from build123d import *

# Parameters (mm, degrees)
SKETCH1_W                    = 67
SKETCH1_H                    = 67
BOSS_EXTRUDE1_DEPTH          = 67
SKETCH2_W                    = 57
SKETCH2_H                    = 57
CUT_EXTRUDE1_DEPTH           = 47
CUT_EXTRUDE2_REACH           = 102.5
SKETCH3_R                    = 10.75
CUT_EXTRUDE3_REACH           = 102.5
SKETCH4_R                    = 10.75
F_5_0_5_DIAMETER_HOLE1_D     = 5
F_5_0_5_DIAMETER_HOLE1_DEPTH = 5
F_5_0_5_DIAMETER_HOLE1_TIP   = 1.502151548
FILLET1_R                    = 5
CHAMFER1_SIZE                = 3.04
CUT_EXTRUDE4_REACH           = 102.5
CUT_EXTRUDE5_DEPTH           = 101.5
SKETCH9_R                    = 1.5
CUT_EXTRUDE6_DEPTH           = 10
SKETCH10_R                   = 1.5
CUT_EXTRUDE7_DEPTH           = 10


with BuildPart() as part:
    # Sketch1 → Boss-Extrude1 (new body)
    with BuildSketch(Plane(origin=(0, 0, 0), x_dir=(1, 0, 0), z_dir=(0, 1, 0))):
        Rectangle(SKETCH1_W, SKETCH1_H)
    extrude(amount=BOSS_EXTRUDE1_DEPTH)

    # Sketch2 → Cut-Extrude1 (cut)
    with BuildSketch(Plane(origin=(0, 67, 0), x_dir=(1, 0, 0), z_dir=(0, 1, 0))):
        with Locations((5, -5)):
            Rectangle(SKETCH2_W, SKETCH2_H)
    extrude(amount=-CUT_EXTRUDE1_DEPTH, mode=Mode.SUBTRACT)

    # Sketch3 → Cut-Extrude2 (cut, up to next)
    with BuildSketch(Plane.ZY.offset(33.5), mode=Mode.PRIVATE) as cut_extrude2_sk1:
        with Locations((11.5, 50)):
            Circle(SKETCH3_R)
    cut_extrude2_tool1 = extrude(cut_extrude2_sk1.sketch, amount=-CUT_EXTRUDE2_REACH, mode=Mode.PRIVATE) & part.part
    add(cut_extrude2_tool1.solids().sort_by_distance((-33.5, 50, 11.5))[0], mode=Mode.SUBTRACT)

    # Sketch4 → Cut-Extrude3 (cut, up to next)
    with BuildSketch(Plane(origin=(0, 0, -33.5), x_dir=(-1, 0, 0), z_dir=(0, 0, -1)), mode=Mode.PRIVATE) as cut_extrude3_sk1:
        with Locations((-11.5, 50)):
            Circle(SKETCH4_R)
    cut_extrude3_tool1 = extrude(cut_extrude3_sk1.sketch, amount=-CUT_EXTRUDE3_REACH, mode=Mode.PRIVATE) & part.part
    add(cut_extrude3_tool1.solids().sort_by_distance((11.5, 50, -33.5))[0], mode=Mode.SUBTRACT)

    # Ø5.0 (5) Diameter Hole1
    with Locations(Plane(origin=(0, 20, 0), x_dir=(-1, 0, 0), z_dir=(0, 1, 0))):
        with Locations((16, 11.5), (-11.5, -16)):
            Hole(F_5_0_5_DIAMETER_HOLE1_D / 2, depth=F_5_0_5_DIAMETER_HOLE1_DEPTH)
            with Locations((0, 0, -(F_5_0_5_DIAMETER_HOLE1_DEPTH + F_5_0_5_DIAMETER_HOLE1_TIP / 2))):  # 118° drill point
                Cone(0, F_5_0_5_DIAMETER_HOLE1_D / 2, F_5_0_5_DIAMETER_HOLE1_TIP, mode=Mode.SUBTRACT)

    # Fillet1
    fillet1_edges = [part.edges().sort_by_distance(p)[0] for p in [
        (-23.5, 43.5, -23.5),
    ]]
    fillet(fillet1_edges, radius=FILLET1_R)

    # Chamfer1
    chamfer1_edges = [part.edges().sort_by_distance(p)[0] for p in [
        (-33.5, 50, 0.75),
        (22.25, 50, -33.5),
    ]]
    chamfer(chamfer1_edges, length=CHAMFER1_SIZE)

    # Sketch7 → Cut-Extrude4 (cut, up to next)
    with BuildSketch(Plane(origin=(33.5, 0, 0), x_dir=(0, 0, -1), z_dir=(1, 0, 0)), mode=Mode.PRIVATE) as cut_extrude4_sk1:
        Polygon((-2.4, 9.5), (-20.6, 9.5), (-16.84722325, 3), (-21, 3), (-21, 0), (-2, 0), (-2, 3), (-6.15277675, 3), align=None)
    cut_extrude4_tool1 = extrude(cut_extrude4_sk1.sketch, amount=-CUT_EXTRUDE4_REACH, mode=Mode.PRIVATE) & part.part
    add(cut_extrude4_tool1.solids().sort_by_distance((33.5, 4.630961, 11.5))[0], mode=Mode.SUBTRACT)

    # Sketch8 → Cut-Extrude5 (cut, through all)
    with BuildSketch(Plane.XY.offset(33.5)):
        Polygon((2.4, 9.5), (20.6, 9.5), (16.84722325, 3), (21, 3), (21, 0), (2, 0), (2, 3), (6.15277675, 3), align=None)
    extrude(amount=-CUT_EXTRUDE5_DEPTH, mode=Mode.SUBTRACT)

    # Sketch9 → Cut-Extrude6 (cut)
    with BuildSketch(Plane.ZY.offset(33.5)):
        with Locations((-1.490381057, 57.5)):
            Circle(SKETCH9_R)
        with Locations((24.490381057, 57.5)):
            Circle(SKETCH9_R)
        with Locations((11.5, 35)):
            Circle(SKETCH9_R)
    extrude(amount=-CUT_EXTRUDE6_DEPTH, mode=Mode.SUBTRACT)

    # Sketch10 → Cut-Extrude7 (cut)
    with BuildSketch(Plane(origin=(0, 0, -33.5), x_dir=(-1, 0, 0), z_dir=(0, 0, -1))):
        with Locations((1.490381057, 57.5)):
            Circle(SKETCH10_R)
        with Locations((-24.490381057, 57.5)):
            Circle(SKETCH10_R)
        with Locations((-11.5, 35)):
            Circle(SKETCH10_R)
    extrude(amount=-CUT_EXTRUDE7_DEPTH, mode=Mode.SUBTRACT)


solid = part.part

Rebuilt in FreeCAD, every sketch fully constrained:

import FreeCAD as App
import Part
import Sketcher
from FreeCAD import Vector
Q = App.Units.Quantity


def edges_at(feature, points):
    """Names of the edges that pass closest to the given points."""
    edges = feature.Shape.Edges
    near = lambda p: min(range(len(edges)), key=lambda i: edges[i].distToShape(Part.Vertex(*p))[0])
    return sorted({f"Edge{near(p) + 1}" for p in points})

doc = App.newDocument("Part")
body = doc.addObject("PartDesign::Body", "Body")

# Sketch on XZ plane
sketch1 = body.newObject("Sketcher::SketchObject", "Sketch")
sketch1.AttachmentSupport = (doc.getObject("XZ_Plane"), [""])
sketch1.MapMode = "FlatFace"
sketch1.addGeometry([
    Part.LineSegment(Vector(-34, -34, 0), Vector(-34, 34, 0)),
    Part.LineSegment(Vector(-34, 34, 0), Vector(34, 34, 0)),
    Part.LineSegment(Vector(34, 34, 0), Vector(34, -34, 0)),
    Part.LineSegment(Vector(34, -34, 0), Vector(-34, -34, 0)),
], False)
sketch1.addConstraint([
    Sketcher.Constraint("Coincident", 0, 2, 1, 1),
    Sketcher.Constraint("Coincident", 1, 2, 2, 1),
    Sketcher.Constraint("Coincident", 2, 2, 3, 1),
    Sketcher.Constraint("Coincident", 3, 2, 0, 1),
    Sketcher.Constraint("Vertical", 0),
    Sketcher.Constraint("Horizontal", 1),
    Sketcher.Constraint("Vertical", 2),
    Sketcher.Constraint("Horizontal", 3),
    Sketcher.Constraint("Symmetric", 0, 2, 2, 2, -1, 1),
    Sketcher.Constraint("Equal", 3, 0),
    Sketcher.Constraint("DistanceX", 1, 1, 1, 2, Q("67 mm")),
])
pad1 = body.newObject("PartDesign::Pad", "Pad")
pad1.Profile = sketch1
pad1.Length = 67
pad1.Reversed = True

# Sketch on XZ plane
sketch2 = body.newObject("Sketcher::SketchObject", "Sketch001")
sketch2.AttachmentSupport = (doc.getObject("XZ_Plane"), [""])
sketch2.MapMode = "FlatFace"
sketch2.AttachmentOffset = App.Placement(Vector(0, 0, -67), App.Rotation())
sketch2.addGeometry([
    Part.LineSegment(Vector(-24, -24, 0), Vector(-24, 34, 0)),
    Part.LineSegment(Vector(-24, 34, 0), Vector(34, 34, 0)),
    Part.LineSegment(Vector(34, 34, 0), Vector(34, -24, 0)),
    Part.LineSegment(Vector(34, -24, 0), Vector(-24, -24, 0)),
], False)
sketch2.addConstraint([
    Sketcher.Constraint("Coincident", 0, 2, 1, 1),
    Sketcher.Constraint("Coincident", 1, 2, 2, 1),
    Sketcher.Constraint("Coincident", 2, 2, 3, 1),
    Sketcher.Constraint("Coincident", 3, 2, 0, 1),
    Sketcher.Constraint("Vertical", 0),
    Sketcher.Constraint("Horizontal", 1),
    Sketcher.Constraint("Vertical", 2),
    Sketcher.Constraint("Horizontal", 3),
    Sketcher.Constraint("Equal", 3, 0),
    Sketcher.Constraint("DistanceX", 1, 1, 1, 2, Q("57 mm")),
    Sketcher.Constraint("DistanceX", 0, 2, -1, 1, Q("23.5 mm")),
    Sketcher.Constraint("DistanceY", -1, 1, 0, 2, Q("33.5 mm")),
])
pocket1 = body.newObject("PartDesign::Pocket", "Pocket")
pocket1.Profile = sketch2
pocket1.Length = 47
pocket1.Reversed = True

# Sketch on YZ plane
sketch3 = body.newObject("Sketcher::SketchObject", "Sketch002")
sketch3.AttachmentSupport = (doc.getObject("YZ_Plane"), [""])
sketch3.MapMode = "FlatFace"
sketch3.AttachmentOffset = App.Placement(Vector(0, 0, -33.5), App.Rotation())
sketch3.addGeometry(Part.Circle(Vector(50, 12, 0), Vector(0, 0, 1), 11), False)
sketch3.addConstraint([
    Sketcher.Constraint("Diameter", 0, Q("21.5 mm")),
    Sketcher.Constraint("DistanceX", -1, 1, 0, 3, Q("50 mm")),
    Sketcher.Constraint("DistanceY", -1, 1, 0, 3, Q("11.5 mm")),
])
pocket2 = body.newObject("PartDesign::Pocket", "Pocket001")
pocket2.Profile = sketch3
pocket2.Type = "UpToFirst"
pocket2.Reversed = True

# Sketch on XY plane
sketch4 = body.newObject("Sketcher::SketchObject", "Sketch003")
sketch4.AttachmentSupport = (doc.getObject("XY_Plane"), [""])
sketch4.MapMode = "FlatFace"
sketch4.AttachmentOffset = App.Placement(Vector(0, 0, -33.5), App.Rotation())
sketch4.addGeometry(Part.Circle(Vector(12, 50, 0), Vector(0, 0, 1), 11), False)
sketch4.addConstraint([
    Sketcher.Constraint("Diameter", 0, Q("21.5 mm")),
    Sketcher.Constraint("DistanceY", -1, 1, 0, 3, Q("50 mm")),
    Sketcher.Constraint("DistanceX", -1, 1, 0, 3, Q("11.5 mm")),
])
pocket3 = body.newObject("PartDesign::Pocket", "Pocket002")
pocket3.Profile = sketch4
pocket3.Type = "UpToFirst"
pocket3.Reversed = True

# Sketch on XZ plane
sketch5 = body.newObject("Sketcher::SketchObject", "Sketch004")
sketch5.AttachmentSupport = (doc.getObject("XZ_Plane"), [""])
sketch5.MapMode = "FlatFace"
sketch5.AttachmentOffset = App.Placement(Vector(0, 0, -20), App.Rotation())
sketch5.addGeometry([
    Part.Circle(Vector(-16, 11.5, 0), Vector(0, 0, 1), 2.5),
    Part.Circle(Vector(11.5, -16, 0), Vector(0, 0, 1), 2.5),
], False)
sketch5.addConstraint([
    Sketcher.Constraint("Equal", 0, 1),
    Sketcher.Constraint("Diameter", 0, Q("5 mm")),
    Sketcher.Constraint("DistanceX", 0, 3, -1, 1, Q("16 mm")),
    Sketcher.Constraint("DistanceY", 1, 3, -1, 1, Q("16 mm")),
    Sketcher.Constraint("DistanceY", -1, 1, 0, 3, Q("11.5 mm")),
    Sketcher.Constraint("DistanceX", -1, 1, 1, 3, Q("11.5 mm")),
])
doc.recompute()
hole = body.newObject("PartDesign::Hole", "Hole")
hole.Profile = sketch5
hole.ThreadType = "None"
hole.Diameter = 5
hole.DepthType = "Dimension"
hole.Depth = 5
hole.DrillPoint = "Angled"
hole.DrillPointAngle = 118
hole.Reversed = True
doc.recompute()

fillet = body.newObject("PartDesign::Fillet", "Fillet")
fillet.Base = (hole, edges_at(hole, [(-23.5, 43.5, -23.5)]))
fillet.Radius = 5
doc.recompute()

chamfer = body.newObject("PartDesign::Chamfer", "Chamfer")
chamfer.Base = (fillet, edges_at(fillet, [(-33.5, 50, 0.75), (22.25, 50, -33.5)]))
chamfer.Size = 3.04

# Sketch on YZ plane
sketch6 = body.newObject("Sketcher::SketchObject", "Sketch005")
sketch6.AttachmentSupport = (doc.getObject("YZ_Plane"), [""])
sketch6.MapMode = "FlatFace"
sketch6.AttachmentOffset = App.Placement(Vector(0, 0, 33.5), App.Rotation())
sketch6.addGeometry([
    Part.LineSegment(Vector(9.5, 2.4, 0), Vector(9.5, 20.6, 0)),  # 0
    Part.LineSegment(Vector(9.5, 20.6, 0), Vector(3, 16.8, 0)),  # 1
    Part.LineSegment(Vector(3, 16.8, 0), Vector(3, 21, 0)),  # 2
    Part.LineSegment(Vector(3, 21, 0), Vector(0, 21, 0)),  # 3
    Part.LineSegment(Vector(0, 21, 0), Vector(0, 2, 0)),  # 4
    Part.LineSegment(Vector(0, 2, 0), Vector(3, 2, 0)),  # 5
    Part.LineSegment(Vector(3, 2, 0), Vector(3, 6.2, 0)),  # 6
    Part.LineSegment(Vector(3, 6.2, 0), Vector(9.5, 2.4, 0)),  # 7
], False)
sketch6.addConstraint([
    Sketcher.Constraint("Coincident", 0, 2, 1, 1),
    Sketcher.Constraint("Coincident", 1, 2, 2, 1),
    Sketcher.Constraint("Coincident", 2, 2, 3, 1),
    Sketcher.Constraint("Coincident", 3, 2, 4, 1),
    Sketcher.Constraint("Coincident", 4, 2, 5, 1),
    Sketcher.Constraint("Coincident", 5, 2, 6, 1),
    Sketcher.Constraint("Coincident", 6, 2, 7, 1),
    Sketcher.Constraint("Coincident", 7, 2, 0, 1),
    Sketcher.Constraint("Vertical", 0),
    Sketcher.Constraint("Vertical", 2),
    Sketcher.Constraint("Horizontal", 3),
    Sketcher.Constraint("Vertical", 4),
    Sketcher.Constraint("Horizontal", 5),
    Sketcher.Constraint("Vertical", 6),
    Sketcher.Constraint("PointOnObject", 3, 2, -2),
    Sketcher.Constraint("Vertical", 2, 2, 5, 2),
    Sketcher.Constraint("Equal", 2, 6),
    Sketcher.Constraint("Equal", 1, 7),
    Sketcher.Constraint("DistanceX", 3, 2, 3, 1, Q("3 mm")),
    Sketcher.Constraint("DistanceY", 4, 2, 4, 1, Q("19 mm")),
    Sketcher.Constraint("Angle", 1, Q("-150 deg")),
    Sketcher.Constraint("DistanceY", 0, 1, 0, 2, Q("18.2 mm")),
    Sketcher.Constraint("DistanceY", -1, 1, 2, 2, Q("21 mm")),
    Sketcher.Constraint("DistanceX", -1, 1, 0, 2, Q("9.5 mm")),
])
pocket4 = body.newObject("PartDesign::Pocket", "Pocket003")
pocket4.Profile = sketch6
pocket4.Type = "UpToFirst"

# Sketch on XY plane
sketch7 = body.newObject("Sketcher::SketchObject", "Sketch006")
sketch7.AttachmentSupport = (doc.getObject("XY_Plane"), [""])
sketch7.MapMode = "FlatFace"
sketch7.AttachmentOffset = App.Placement(Vector(0, 0, 33.5), App.Rotation())
sketch7.addGeometry([
    Part.LineSegment(Vector(20.6, 9.5, 0), Vector(2.4, 9.5, 0)),  # 0
    Part.LineSegment(Vector(2.4, 9.5, 0), Vector(6.2, 3, 0)),  # 1
    Part.LineSegment(Vector(6.2, 3, 0), Vector(2, 3, 0)),  # 2
    Part.LineSegment(Vector(2, 3, 0), Vector(2, 0, 0)),  # 3
    Part.LineSegment(Vector(2, 0, 0), Vector(21, 0, 0)),  # 4
    Part.LineSegment(Vector(21, 0, 0), Vector(21, 3, 0)),  # 5
    Part.LineSegment(Vector(21, 3, 0), Vector(16.8, 3, 0)),  # 6
    Part.LineSegment(Vector(16.8, 3, 0), Vector(20.6, 9.5, 0)),  # 7
], False)
sketch7.addConstraint([
    Sketcher.Constraint("Coincident", 0, 2, 1, 1),
    Sketcher.Constraint("Coincident", 1, 2, 2, 1),
    Sketcher.Constraint("Coincident", 2, 2, 3, 1),
    Sketcher.Constraint("Coincident", 3, 2, 4, 1),
    Sketcher.Constraint("Coincident", 4, 2, 5, 1),
    Sketcher.Constraint("Coincident", 5, 2, 6, 1),
    Sketcher.Constraint("Coincident", 6, 2, 7, 1),
    Sketcher.Constraint("Coincident", 7, 2, 0, 1),
    Sketcher.Constraint("Horizontal", 0),
    Sketcher.Constraint("Horizontal", 2),
    Sketcher.Constraint("Vertical", 3),
    Sketcher.Constraint("Horizontal", 4),
    Sketcher.Constraint("Vertical", 5),
    Sketcher.Constraint("Horizontal", 6),
    Sketcher.Constraint("PointOnObject", 3, 2, -1),
    Sketcher.Constraint("Horizontal", 2, 2, 5, 2),
    Sketcher.Constraint("Equal", 2, 6),
    Sketcher.Constraint("Equal", 1, 7),
    Sketcher.Constraint("DistanceX", 4, 1, 4, 2, Q("19 mm")),
    Sketcher.Constraint("DistanceY", 3, 2, 3, 1, Q("3 mm")),
    Sketcher.Constraint("Angle", 1, Q("-60 deg")),
    Sketcher.Constraint("DistanceX", 0, 2, 0, 1, Q("18.2 mm")),
    Sketcher.Constraint("DistanceX", -1, 1, 2, 2, Q("2 mm")),
    Sketcher.Constraint("DistanceY", -1, 1, 0, 2, Q("9.5 mm")),
])
pocket5 = body.newObject("PartDesign::Pocket", "Pocket004")
pocket5.Profile = sketch7
pocket5.Type = "ThroughAll"

# Sketch on YZ plane
sketch8 = body.newObject("Sketcher::SketchObject", "Sketch007")
sketch8.AttachmentSupport = (doc.getObject("YZ_Plane"), [""])
sketch8.MapMode = "FlatFace"
sketch8.AttachmentOffset = App.Placement(Vector(0, 0, -33.5), App.Rotation())
sketch8.addGeometry([
    Part.Circle(Vector(57.5, -1.5, 0), Vector(0, 0, 1), 1.5),
    Part.Circle(Vector(57.5, 24.5, 0), Vector(0, 0, 1), 1.5),
    Part.Circle(Vector(35, 11.5, 0), Vector(0, 0, 1), 1.5),
], False)
sketch8.addConstraint([
    Sketcher.Constraint("Equal", 0, 1),
    Sketcher.Constraint("Equal", 1, 2),
    Sketcher.Constraint("Vertical", 0, 3, 1, 3),
    Sketcher.Constraint("Diameter", 0, Q("3 mm")),
    Sketcher.Constraint("DistanceX", -1, 1, 2, 3, Q("35 mm")),
    Sketcher.Constraint("DistanceX", -1, 1, 0, 3, Q("57.5 mm")),
    Sketcher.Constraint("DistanceY", -1, 1, 2, 3, Q("11.5 mm")),
    Sketcher.Constraint("DistanceY", 0, 3, -1, 1, Q("1.490381 mm")),
    Sketcher.Constraint("DistanceY", -1, 1, 1, 3, Q("24.490381 mm")),
])
pocket6 = body.newObject("PartDesign::Pocket", "Pocket005")
pocket6.Profile = sketch8
pocket6.Length = 10
pocket6.Reversed = True

# Sketch on XY plane
sketch9 = body.newObject("Sketcher::SketchObject", "Sketch008")
sketch9.AttachmentSupport = (doc.getObject("XY_Plane"), [""])
sketch9.MapMode = "FlatFace"
sketch9.AttachmentOffset = App.Placement(Vector(0, 0, -33.5), App.Rotation())
sketch9.addGeometry([
    Part.Circle(Vector(-1.5, 57.5, 0), Vector(0, 0, 1), 1.5),
    Part.Circle(Vector(24.5, 57.5, 0), Vector(0, 0, 1), 1.5),
    Part.Circle(Vector(11.5, 35, 0), Vector(0, 0, 1), 1.5),
], False)
sketch9.addConstraint([
    Sketcher.Constraint("Equal", 0, 1),
    Sketcher.Constraint("Equal", 1, 2),
    Sketcher.Constraint("Horizontal", 0, 3, 1, 3),
    Sketcher.Constraint("Diameter", 0, Q("3 mm")),
    Sketcher.Constraint("DistanceY", -1, 1, 2, 3, Q("35 mm")),
    Sketcher.Constraint("DistanceY", -1, 1, 0, 3, Q("57.5 mm")),
    Sketcher.Constraint("DistanceX", -1, 1, 2, 3, Q("11.5 mm")),
    Sketcher.Constraint("DistanceX", 0, 3, -1, 1, Q("1.490381 mm")),
    Sketcher.Constraint("DistanceX", -1, 1, 1, 3, Q("24.490381 mm")),
])
pocket7 = body.newObject("PartDesign::Pocket", "Pocket006")
pocket7.Profile = sketch9
pocket7.Length = 10
pocket7.Reversed = True

doc.recompute()
